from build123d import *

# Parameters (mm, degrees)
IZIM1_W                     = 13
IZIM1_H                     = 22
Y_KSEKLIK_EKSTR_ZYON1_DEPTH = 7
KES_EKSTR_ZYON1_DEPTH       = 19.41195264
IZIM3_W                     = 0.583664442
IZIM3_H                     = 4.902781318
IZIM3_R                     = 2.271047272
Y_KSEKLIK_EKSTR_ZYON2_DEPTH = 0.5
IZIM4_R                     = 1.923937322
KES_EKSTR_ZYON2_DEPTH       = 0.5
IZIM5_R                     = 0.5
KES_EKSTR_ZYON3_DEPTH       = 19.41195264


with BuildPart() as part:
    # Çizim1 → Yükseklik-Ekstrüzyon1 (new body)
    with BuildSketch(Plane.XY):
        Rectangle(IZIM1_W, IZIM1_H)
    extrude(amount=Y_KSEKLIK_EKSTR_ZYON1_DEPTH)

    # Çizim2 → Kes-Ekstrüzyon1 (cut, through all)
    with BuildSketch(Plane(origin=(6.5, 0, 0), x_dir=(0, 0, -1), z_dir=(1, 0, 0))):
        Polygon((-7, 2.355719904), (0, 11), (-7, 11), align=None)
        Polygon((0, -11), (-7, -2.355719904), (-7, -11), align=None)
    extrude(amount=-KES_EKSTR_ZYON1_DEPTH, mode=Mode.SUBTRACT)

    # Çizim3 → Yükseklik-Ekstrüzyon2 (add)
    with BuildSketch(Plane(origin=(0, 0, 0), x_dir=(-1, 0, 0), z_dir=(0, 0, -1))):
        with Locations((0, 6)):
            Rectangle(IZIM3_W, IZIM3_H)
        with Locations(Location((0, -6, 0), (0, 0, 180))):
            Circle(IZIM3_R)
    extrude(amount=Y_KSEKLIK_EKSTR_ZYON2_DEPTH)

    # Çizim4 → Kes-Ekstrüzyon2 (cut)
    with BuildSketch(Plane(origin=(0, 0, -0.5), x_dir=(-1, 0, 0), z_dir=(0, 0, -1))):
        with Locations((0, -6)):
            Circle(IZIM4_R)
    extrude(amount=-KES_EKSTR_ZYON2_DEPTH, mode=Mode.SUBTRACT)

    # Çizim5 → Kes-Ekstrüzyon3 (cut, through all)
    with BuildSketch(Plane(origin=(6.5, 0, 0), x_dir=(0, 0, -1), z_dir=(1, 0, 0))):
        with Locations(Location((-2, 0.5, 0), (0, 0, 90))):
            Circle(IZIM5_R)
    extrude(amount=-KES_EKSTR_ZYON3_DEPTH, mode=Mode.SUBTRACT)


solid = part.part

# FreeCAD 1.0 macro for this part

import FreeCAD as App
import Part
import Sketcher

V = App.Vector
Q = App.Units.Quantity


def add_polygon(sketch, points):
    """Adds a closed chain of lines whose ends are joined by coincident constraints."""
    first, n = sketch.GeometryCount, len(points)
    for a, b in zip(points, points[1:] + points[:1]):
        sketch.addGeometry(Part.LineSegment(App.Vector(*a, 0), App.Vector(*b, 0)), False)
    for i in range(n):
        sketch.addConstraint(Sketcher.Constraint("Coincident", first + i, 2, first + (i + 1) % n, 1))

doc = App.newDocument("Part")
params = doc.addObject("Spreadsheet::Sheet", "Params")
for row, (alias, value) in enumerate([
    ("sketch1_width", "13 mm"),
    ("sketch1_height", "22 mm"),
    ("pad1_length", "7 mm"),
    ("sketch2_height", "7 mm"),
    ("pad2_length", "0.5 mm"),
    ("pocket2_length", "0.5 mm"),
    ("sketch5_diameter", "1 mm"),
], start=1):
    params.set(f"A{row}", alias)
    params.set(f"B{row}", "=" + value)
    params.setAlias(f"B{row}", alias)

body = doc.addObject("PartDesign::Body", "Body")

# Sketch on XY plane
sketch1 = doc.addObject("Sketcher::SketchObject", "Sketch")
body.addObject(sketch1)
sketch1.AttachmentSupport = (doc.XY_Plane, [""])
sketch1.MapMode = "FlatFace"
add_polygon(sketch1, [(-6, 11), (-6, -11), (6, -11), (6, 11)])  # lines 0-3
sketch1.addConstraint(Sketcher.Constraint("Vertical", 0))
sketch1.addConstraint(Sketcher.Constraint("Horizontal", 1))
sketch1.addConstraint(Sketcher.Constraint("Vertical", 2))
sketch1.addConstraint(Sketcher.Constraint("Horizontal", 3))
sketch1.addConstraint(Sketcher.Constraint("Symmetric", 0, 2, 2, 2, -1, 1))
sketch1.addConstraint(Sketcher.Constraint("DistanceX", 1, 1, 1, 2, Q("13 mm")))
sketch1.addConstraint(Sketcher.Constraint("DistanceY", 0, 2, 0, 1, Q("22 mm")))
sketch1.setExpression("Constraints[9]", "Params.sketch1_width")
sketch1.setExpression("Constraints[10]", "Params.sketch1_height")
pad1 = doc.addObject("PartDesign::Pad", "Pad")
body.addObject(pad1)
pad1.Profile = sketch1
pad1.setExpression("Length", "Params.pad1_length")

# Sketch on YZ plane
sketch2 = doc.addObject("Sketcher::SketchObject", "Sketch001")
body.addObject(sketch2)
sketch2.AttachmentSupport = (doc.YZ_Plane, [""])
sketch2.MapMode = "FlatFace"
sketch2.AttachmentOffset = App.Placement(V(0, 0, 6.5), App.Rotation())
add_polygon(sketch2, [(2, 7), (11, 0), (11, 7)])  # lines 0-2
add_polygon(sketch2, [(-11, 0), (-2, 7), (-11, 7)])  # lines 3-5
sketch2.addConstraint(Sketcher.Constraint("Vertical", 1))
sketch2.addConstraint(Sketcher.Constraint("Horizontal", 2))
sketch2.addConstraint(Sketcher.Constraint("Horizontal", 4))
sketch2.addConstraint(Sketcher.Constraint("Vertical", 5))
sketch2.addConstraint(Sketcher.Constraint("Symmetric", 0, 2, 5, 2, -1, 1))
sketch2.addConstraint(Sketcher.Constraint("Symmetric", 2, 2, 3, 2, -2))
sketch2.addConstraint(Sketcher.Constraint("PointOnObject", 0, 2, -1))
sketch2.addConstraint(Sketcher.Constraint("DistanceY", 1, 1, 1, 2, Q("7 mm")))
sketch2.addConstraint(Sketcher.Constraint("Angle", 0, Q("-39 deg")))
sketch2.addConstraint(Sketcher.Constraint("DistanceX", -1, 1, 0, 2, Q("11 mm")))
sketch2.setExpression("Constraints[13]", "Params.sketch2_height")
pocket1 = doc.addObject("PartDesign::Pocket", "Pocket")
body.addObject(pocket1)
pocket1.Profile = sketch2
pocket1.Type = "ThroughAll"

# Sketch on XY plane
sketch3 = doc.addObject("Sketcher::SketchObject", "Sketch002")
body.addObject(sketch3)
sketch3.AttachmentSupport = (doc.XY_Plane, [""])
sketch3.MapMode = "FlatFace"
add_polygon(sketch3, [(0.3, 8.5), (0.3, 3.5), (-0.3, 3.5), (-0.3, 8.5)])  # lines 0-3
sketch3.addGeometry(Part.Circle(V(0, -6, 0), V(0, 0, 1), 2.3), False)  # 4
sketch3.addConstraint(Sketcher.Constraint("Vertical", 0))
sketch3.addConstraint(Sketcher.Constraint("Horizontal", 1))
sketch3.addConstraint(Sketcher.Constraint("Vertical", 2))
sketch3.addConstraint(Sketcher.Constraint("Horizontal", 3))
sketch3.addConstraint(Sketcher.Constraint("PointOnObject", 4, 3, -2))
sketch3.addConstraint(Sketcher.Constraint("DistanceY", 4, 3, -1, 1, Q("6 mm")))
sketch3.addConstraint(Sketcher.Constraint("Diameter", 4, Q("4.542095 mm")))
sketch3.addConstraint(Sketcher.Constraint("DistanceY", 0, 2, 0, 1, Q("4.902781 mm")))
sketch3.addConstraint(Sketcher.Constraint("DistanceX", 1, 2, 1, 1, Q("0.583664 mm")))
sketch3.addConstraint(Sketcher.Constraint("DistanceY", -1, 1, 0, 2, Q("3.548609 mm")))
sketch3.addConstraint(Sketcher.Constraint("DistanceX", -1, 1, 0, 2, Q("0.291832 mm")))
pad2 = doc.addObject("PartDesign::Pad", "Pad001")
body.addObject(pad2)
pad2.Profile = sketch3
pad2.setExpression("Length", "Params.pad2_length")
pad2.Reversed = True

# Sketch on XY plane
sketch4 = doc.addObject("Sketcher::SketchObject", "Sketch003")
body.addObject(sketch4)
sketch4.AttachmentSupport = (doc.XY_Plane, [""])
sketch4.MapMode = "FlatFace"
sketch4.AttachmentOffset = App.Placement(V(0, 0, -0.5), App.Rotation())
sketch4.addGeometry(Part.Circle(V(0, -6, 0), V(0, 0, 1), 1.9), False)
sketch4.addConstraint(Sketcher.Constraint("PointOnObject", 0, 3, -2))
sketch4.addConstraint(Sketcher.Constraint("DistanceY", 0, 3, -1, 1, Q("6 mm")))
sketch4.addConstraint(Sketcher.Constraint("Diameter", 0, Q("3.847875 mm")))
pocket2 = doc.addObject("PartDesign::Pocket", "Pocket001")
body.addObject(pocket2)
pocket2.Profile = sketch4
pocket2.setExpression("Length", "Params.pocket2_length")
pocket2.Reversed = True

# Sketch on YZ plane
sketch5 = doc.addObject("Sketcher::SketchObject", "Sketch004")
body.addObject(sketch5)
sketch5.AttachmentSupport = (doc.YZ_Plane, [""])
sketch5.MapMode = "FlatFace"
sketch5.AttachmentOffset = App.Placement(V(0, 0, 6.5), App.Rotation())
sketch5.addGeometry(Part.Circle(V(0.5, 2, 0), V(0, 0, 1), 0.5), False)
sketch5.addConstraint(Sketcher.Constraint("Diameter", 0, Q("1 mm")))
sketch5.addConstraint(Sketcher.Constraint("DistanceY", -1, 1, 0, 3, Q("2 mm")))
sketch5.addConstraint(Sketcher.Constraint("DistanceX", -1, 1, 0, 3, Q("0.5 mm")))
sketch5.setExpression("Constraints[0]", "Params.sketch5_diameter")
pocket3 = doc.addObject("PartDesign::Pocket", "Pocket002")
body.addObject(pocket3)
pocket3.Profile = sketch5
pocket3.Type = "ThroughAll"

doc.recompute()
